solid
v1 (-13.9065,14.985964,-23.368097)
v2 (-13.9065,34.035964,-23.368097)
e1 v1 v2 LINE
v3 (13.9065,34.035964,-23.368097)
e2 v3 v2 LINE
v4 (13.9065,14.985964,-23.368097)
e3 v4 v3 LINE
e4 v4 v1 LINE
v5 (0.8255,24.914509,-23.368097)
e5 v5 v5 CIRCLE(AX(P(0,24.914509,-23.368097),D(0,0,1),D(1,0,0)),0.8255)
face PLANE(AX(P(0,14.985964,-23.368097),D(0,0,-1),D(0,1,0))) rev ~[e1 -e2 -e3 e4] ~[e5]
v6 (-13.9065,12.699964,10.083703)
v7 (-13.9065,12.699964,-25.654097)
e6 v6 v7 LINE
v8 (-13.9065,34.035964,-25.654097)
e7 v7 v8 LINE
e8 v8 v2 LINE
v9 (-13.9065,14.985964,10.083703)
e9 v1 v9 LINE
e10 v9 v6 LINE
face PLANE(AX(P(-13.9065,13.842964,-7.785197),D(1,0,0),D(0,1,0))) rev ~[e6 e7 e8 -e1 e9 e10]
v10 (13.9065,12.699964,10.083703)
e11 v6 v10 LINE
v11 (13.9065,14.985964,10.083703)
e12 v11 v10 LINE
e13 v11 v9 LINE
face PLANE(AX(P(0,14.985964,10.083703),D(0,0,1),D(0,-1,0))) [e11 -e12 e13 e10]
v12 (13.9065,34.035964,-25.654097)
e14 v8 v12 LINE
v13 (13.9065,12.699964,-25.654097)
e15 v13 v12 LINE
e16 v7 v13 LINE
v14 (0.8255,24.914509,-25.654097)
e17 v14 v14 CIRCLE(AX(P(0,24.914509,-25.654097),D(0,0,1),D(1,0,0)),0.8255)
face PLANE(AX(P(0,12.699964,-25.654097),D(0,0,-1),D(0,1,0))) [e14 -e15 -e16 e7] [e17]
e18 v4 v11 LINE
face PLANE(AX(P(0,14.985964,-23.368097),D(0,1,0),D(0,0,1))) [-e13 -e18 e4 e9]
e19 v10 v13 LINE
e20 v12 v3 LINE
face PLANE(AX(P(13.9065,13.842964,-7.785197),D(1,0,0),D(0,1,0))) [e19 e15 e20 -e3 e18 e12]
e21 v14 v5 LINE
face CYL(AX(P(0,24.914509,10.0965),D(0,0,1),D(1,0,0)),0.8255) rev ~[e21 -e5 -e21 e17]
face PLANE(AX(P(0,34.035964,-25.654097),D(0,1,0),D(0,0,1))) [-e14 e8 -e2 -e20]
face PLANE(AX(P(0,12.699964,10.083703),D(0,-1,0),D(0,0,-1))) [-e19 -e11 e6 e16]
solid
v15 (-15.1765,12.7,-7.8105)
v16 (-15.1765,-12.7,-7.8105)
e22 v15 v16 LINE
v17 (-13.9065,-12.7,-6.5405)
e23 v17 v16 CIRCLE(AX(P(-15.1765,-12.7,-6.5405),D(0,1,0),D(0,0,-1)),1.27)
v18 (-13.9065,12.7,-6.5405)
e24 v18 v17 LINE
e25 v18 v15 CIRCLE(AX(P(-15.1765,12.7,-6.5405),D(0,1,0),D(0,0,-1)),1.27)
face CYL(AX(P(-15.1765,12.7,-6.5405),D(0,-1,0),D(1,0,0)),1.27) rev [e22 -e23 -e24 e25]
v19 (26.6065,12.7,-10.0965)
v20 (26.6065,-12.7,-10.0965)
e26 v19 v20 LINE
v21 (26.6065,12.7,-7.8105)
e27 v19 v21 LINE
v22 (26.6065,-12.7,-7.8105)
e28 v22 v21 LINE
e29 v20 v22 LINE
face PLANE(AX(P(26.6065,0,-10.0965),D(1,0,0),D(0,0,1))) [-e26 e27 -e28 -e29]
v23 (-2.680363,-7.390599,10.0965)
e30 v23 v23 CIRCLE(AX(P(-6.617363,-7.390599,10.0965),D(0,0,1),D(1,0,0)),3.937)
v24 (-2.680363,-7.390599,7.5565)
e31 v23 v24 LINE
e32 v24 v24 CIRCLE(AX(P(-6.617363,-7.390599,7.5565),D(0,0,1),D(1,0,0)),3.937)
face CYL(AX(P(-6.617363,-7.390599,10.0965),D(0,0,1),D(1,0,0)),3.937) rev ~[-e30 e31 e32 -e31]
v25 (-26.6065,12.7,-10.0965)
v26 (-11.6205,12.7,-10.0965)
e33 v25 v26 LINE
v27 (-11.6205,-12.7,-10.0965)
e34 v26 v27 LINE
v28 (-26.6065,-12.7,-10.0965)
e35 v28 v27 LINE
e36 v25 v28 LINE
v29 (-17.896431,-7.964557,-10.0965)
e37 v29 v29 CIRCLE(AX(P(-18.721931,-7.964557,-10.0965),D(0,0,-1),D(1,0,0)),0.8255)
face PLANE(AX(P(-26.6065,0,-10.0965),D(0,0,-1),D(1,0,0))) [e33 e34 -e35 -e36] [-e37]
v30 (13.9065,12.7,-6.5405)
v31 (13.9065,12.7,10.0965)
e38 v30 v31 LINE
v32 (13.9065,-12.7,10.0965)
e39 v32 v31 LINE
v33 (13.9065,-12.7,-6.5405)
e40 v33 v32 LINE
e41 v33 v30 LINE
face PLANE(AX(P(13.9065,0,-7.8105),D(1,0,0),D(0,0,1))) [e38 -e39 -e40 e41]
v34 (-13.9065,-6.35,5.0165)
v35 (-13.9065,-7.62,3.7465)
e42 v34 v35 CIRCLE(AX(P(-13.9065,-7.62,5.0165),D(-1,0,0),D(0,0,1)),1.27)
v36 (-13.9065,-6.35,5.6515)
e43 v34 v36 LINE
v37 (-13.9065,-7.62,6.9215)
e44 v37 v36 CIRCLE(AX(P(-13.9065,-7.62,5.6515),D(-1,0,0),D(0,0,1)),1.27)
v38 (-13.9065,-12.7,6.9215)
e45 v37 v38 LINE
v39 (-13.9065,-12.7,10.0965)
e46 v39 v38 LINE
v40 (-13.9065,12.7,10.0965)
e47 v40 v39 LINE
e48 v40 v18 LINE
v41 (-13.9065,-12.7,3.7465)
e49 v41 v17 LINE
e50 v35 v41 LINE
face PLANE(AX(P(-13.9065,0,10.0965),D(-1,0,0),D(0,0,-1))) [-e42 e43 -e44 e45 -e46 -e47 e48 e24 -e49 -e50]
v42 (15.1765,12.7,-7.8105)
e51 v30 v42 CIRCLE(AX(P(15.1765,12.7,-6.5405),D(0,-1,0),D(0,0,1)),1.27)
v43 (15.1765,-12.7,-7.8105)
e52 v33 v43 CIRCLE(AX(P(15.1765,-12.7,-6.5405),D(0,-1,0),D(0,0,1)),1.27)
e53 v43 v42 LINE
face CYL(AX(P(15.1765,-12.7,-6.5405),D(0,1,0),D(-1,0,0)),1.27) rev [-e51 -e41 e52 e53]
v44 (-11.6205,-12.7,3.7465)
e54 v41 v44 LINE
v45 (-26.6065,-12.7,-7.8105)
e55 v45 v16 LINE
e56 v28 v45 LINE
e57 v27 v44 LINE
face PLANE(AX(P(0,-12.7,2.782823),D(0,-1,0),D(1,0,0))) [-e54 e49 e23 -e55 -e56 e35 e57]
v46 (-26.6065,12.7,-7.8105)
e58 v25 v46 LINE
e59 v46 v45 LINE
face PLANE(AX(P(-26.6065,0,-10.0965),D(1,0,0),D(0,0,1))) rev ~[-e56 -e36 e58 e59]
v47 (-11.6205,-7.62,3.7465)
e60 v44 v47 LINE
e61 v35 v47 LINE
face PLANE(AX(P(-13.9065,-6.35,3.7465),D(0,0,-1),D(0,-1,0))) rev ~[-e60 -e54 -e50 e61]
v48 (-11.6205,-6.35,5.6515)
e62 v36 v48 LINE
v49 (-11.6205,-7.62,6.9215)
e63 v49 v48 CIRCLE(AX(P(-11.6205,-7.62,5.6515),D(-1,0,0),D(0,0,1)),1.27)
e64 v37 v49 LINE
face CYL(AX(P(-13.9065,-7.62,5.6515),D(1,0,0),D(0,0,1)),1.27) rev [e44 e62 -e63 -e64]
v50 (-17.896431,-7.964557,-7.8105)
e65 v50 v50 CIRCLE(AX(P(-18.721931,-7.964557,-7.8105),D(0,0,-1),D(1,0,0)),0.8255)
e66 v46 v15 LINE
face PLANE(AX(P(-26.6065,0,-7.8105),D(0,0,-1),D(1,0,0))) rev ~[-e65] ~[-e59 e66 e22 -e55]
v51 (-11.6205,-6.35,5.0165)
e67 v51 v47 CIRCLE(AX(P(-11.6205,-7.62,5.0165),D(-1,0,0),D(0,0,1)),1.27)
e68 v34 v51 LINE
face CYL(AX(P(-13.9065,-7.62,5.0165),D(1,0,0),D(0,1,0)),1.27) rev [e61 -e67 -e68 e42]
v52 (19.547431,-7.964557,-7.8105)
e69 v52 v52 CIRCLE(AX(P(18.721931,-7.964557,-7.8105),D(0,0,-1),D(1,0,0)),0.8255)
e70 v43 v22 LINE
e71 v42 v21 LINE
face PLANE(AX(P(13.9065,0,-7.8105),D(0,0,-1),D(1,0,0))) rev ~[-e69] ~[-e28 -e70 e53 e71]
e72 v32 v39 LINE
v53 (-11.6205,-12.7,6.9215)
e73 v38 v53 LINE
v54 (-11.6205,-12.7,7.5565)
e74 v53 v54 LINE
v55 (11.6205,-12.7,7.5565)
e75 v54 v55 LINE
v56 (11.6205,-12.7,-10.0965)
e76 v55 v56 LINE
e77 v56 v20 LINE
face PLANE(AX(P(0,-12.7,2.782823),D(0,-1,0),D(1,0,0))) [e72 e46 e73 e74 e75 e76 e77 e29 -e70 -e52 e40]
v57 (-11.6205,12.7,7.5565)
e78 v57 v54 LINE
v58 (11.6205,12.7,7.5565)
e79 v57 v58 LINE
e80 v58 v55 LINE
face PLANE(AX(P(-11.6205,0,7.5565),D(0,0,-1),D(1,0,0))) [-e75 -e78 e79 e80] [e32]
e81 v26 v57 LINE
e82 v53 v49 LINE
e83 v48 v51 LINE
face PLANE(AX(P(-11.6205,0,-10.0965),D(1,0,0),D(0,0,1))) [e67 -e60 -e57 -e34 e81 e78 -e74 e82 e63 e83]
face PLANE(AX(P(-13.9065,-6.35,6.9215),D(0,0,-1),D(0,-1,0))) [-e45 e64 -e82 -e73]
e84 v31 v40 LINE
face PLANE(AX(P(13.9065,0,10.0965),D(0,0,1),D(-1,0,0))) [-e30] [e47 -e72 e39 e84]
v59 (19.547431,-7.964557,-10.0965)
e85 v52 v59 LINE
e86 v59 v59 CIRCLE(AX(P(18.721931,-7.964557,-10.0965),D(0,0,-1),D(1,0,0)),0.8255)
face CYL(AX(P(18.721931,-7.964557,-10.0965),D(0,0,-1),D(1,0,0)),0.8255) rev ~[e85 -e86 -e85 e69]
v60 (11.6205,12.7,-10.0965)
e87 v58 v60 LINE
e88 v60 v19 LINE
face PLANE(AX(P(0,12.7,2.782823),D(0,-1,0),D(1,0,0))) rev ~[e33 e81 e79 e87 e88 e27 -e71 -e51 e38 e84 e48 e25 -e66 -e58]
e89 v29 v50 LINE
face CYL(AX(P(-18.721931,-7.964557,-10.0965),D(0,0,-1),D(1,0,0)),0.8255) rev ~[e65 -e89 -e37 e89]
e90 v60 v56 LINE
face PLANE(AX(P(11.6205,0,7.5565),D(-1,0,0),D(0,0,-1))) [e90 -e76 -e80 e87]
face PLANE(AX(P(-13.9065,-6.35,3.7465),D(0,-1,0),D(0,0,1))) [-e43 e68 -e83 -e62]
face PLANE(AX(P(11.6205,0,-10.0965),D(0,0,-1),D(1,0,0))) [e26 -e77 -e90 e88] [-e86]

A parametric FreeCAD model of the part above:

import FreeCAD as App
import Part
import Sketcher
from FreeCAD import Vector
Q = App.Units.Quantity


def edges_at(feature, points):
    """Names of the edges that pass closest to the given points."""
    edges = feature.Shape.Edges
    near = lambda p: min(range(len(edges)), key=lambda i: edges[i].distToShape(Part.Vertex(*p))[0])
    return sorted({f"Edge{near(p) + 1}" for p in points})


def add_polygon(sketch, points):
    """Adds a closed chain of lines whose ends are joined by coincident constraints."""
    first, n = sketch.GeometryCount, len(points)
    for a, b in zip(points, points[1:] + points[:1]):
        sketch.addGeometry(Part.LineSegment(App.Vector(*a, 0), App.Vector(*b, 0)), False)
    for i in range(n):
        sketch.addConstraint(Sketcher.Constraint("Coincident", first + i, 2, first + (i + 1) % n, 1))

doc = App.newDocument("Part")
params = doc.addObject("Spreadsheet::Sheet", "Params")
for row, (alias, value) in enumerate([
    ("sketch1_width", "0.5 in"),
    ("sketch1_width2", "0.59 in"),
    ("sketch1_height", "0.09 in"),
    ("sketch1_width3", "1.095 in"),
    ("sketch1_height2", "0.705 in"),
    ("pad1_length", "1 in"),
    ("sketch2_width", "0.09 in"),
    ("sketch2_width2", "0.84 in"),
    ("sketch2_height", "1.407 in"),
    ("pad2_length", "1.095 in"),
    ("sketch3_diameter", "0.31 in"),
    ("sketch3_diameter2", "0.065 in"),
    ("pad3_length", "5 in"),
    ("sketch4_diameter", "0.065 in"),
    ("pocket1_length", "5 in"),
    ("sketch5_width", "0.25 in"),
    ("sketch5_height", "0.125 in"),
    ("pocket2_length", "1 in"),
    ("fillet_radius", "0.05 in"),
], start=1):
    params.set(f"A{row}", alias)
    params.set(f"B{row}", "=" + value)
    params.setAlias(f"B{row}", alias)

body = doc.addObject("PartDesign::Body", "Body")

# Sketch on XZ plane
sketch1 = doc.addObject("Sketcher::SketchObject", "Sketch")
body.addObject(sketch1)
sketch1.AttachmentSupport = (doc.XZ_Plane, [""])
sketch1.MapMode = "FlatFace"
add_polygon(sketch1, [(13.9, 10.1), (-13.9, 10.1), (-13.9, -7.8), (-26.6, -7.8), (-26.6, -10.1), (-11.6, -10.1), (-11.6, 7.6), (11.6, 7.6), (11.6, -10.1), (26.6, -10.1), (26.6, -7.8), (13.9, -7.8)])  # lines 0-11
sketch1.addConstraint(Sketcher.Constraint("Horizontal", 0))
sketch1.addConstraint(Sketcher.Constraint("Vertical", 1))
sketch1.addConstraint(Sketcher.Constraint("Horizontal", 2))
sketch1.addConstraint(Sketcher.Constraint("Vertical", 3))
sketch1.addConstraint(Sketcher.Constraint("Horizontal", 4))
sketch1.addConstraint(Sketcher.Constraint("Vertical", 5))
sketch1.addConstraint(Sketcher.Constraint("Horizontal", 6))
sketch1.addConstraint(Sketcher.Constraint("Vertical", 7))
sketch1.addConstraint(Sketcher.Constraint("Horizontal", 8))
sketch1.addConstraint(Sketcher.Constraint("Vertical", 9))
sketch1.addConstraint(Sketcher.Constraint("Horizontal", 10))
sketch1.addConstraint(Sketcher.Constraint("Vertical", 11))
sketch1.addConstraint(Sketcher.Constraint("Symmetric", 4, 2, 7, 2, -2))
sketch1.addConstraint(Sketcher.Constraint("Symmetric", 2, 2, 9, 2, -2))
sketch1.addConstraint(Sketcher.Constraint("Equal", 2, 10))
sketch1.addConstraint(Sketcher.Constraint("DistanceX", 2, 2, 2, 1, Q("0.5 in")))
sketch1.addConstraint(Sketcher.Constraint("DistanceX", 4, 1, 4, 2, Q("0.59 in")))
sketch1.addConstraint(Sketcher.Constraint("DistanceY", 3, 2, 3, 1, Q("0.09 in")))
sketch1.addConstraint(Sketcher.Constraint("DistanceY", 5, 2, 0, 2, Q("0.1 in")))
sketch1.addConstraint(Sketcher.Constraint("DistanceX", 0, 2, 0, 1, Q("1.095 in")))
sketch1.addConstraint(Sketcher.Constraint("DistanceY", 1, 2, 1, 1, Q("0.705 in")))
sketch1.addConstraint(Sketcher.Constraint("DistanceY", -1, 1, 0, 2, Q("0.3975 in")))
sketch1.setExpression("Constraints[27]", "Params.sketch1_width")
sketch1.setExpression("Constraints[28]", "Params.sketch1_width2")
sketch1.setExpression("Constraints[29]", "Params.sketch1_height")
sketch1.setExpression("Constraints[31]", "Params.sketch1_width3")
sketch1.setExpression("Constraints[32]", "Params.sketch1_height2")
pad1 = doc.addObject("PartDesign::Pad", "Pad")
body.addObject(pad1)
pad1.Profile = sketch1
pad1.setExpression("Length", "Params.pad1_length")
pad1.Midplane = True
body2 = doc.addObject("PartDesign::Body", "Body001")

# Sketch on YZ plane
sketch2 = doc.addObject("Sketcher::SketchObject", "Sketch001")
body2.addObject(sketch2)
sketch2.AttachmentSupport = (doc.getObject("YZ_Plane001"), [""])
sketch2.MapMode = "FlatFace"
add_polygon(sketch2, [(15, 10.1), (12.7, 10.1), (12.7, -25.7), (34, -25.7), (34, -23.4), (15, -23.4)])  # lines 0-5
sketch2.addConstraint(Sketcher.Constraint("Horizontal", 0))
sketch2.addConstraint(Sketcher.Constraint("Vertical", 1))
sketch2.addConstraint(Sketcher.Constraint("Horizontal", 2))
sketch2.addConstraint(Sketcher.Constraint("Vertical", 3))
sketch2.addConstraint(Sketcher.Constraint("Horizontal", 4))
sketch2.addConstraint(Sketcher.Constraint("Vertical", 5))
sketch2.addConstraint(Sketcher.Constraint("Equal", 0, 3))
sketch2.addConstraint(Sketcher.Constraint("DistanceX", 0, 2, 0, 1, Q("0.09 in")))
sketch2.addConstraint(Sketcher.Constraint("DistanceX", 2, 1, 2, 2, Q("0.84 in")))
sketch2.addConstraint(Sketcher.Constraint("DistanceY", 1, 2, 1, 1, Q("1.407 in")))
sketch2.addConstraint(Sketcher.Constraint("DistanceX", -1, 1, 0, 2, Q("12.699964 mm")))
sketch2.addConstraint(Sketcher.Constraint("DistanceY", -1, 1, 0, 2, Q("10.083703 mm")))
sketch2.setExpression("Constraints[13]", "Params.sketch2_width")
sketch2.setExpression("Constraints[14]", "Params.sketch2_width2")
sketch2.setExpression("Constraints[15]", "Params.sketch2_height")
pad2 = doc.addObject("PartDesign::Pad", "Pad001")
body2.addObject(pad2)
pad2.Profile = sketch2
pad2.setExpression("Length", "Params.pad2_length")
pad2.Midplane = True
body3 = doc.addObject("PartDesign::Body", "Body002")
body3.AllowCompound = True

# Sketch on XY plane
sketch3 = doc.addObject("Sketcher::SketchObject", "Sketch002")
body3.addObject(sketch3)
sketch3.AttachmentSupport = (doc.getObject("XY_Plane002"), [""])
sketch3.MapMode = "FlatFace"
sketch3.AttachmentOffset = App.Placement(Vector(0, 0, 0.3975 * 25.4), App.Rotation())
sketch3.addGeometry(Part.Circle(Vector(-6.6, -7.4, 0), Vector(0, 0, 1), 3.9), False)
sketch3.addGeometry(Part.Circle(Vector(0, 24.9, 0), Vector(0, 0, 1), 0.8), False)
sketch3.addConstraint(Sketcher.Constraint("PointOnObject", 1, 3, -2))
sketch3.addConstraint(Sketcher.Constraint("Diameter", 0, Q("0.31 in")))
sketch3.addConstraint(Sketcher.Constraint("Diameter", 1, Q("0.065 in")))
sketch3.addConstraint(Sketcher.Constraint("DistanceY", 0, 3, -1, 1, Q("7.390599 mm")))
sketch3.addConstraint(Sketcher.Constraint("DistanceY", -1, 1, 1, 3, Q("24.914509 mm")))
sketch3.addConstraint(Sketcher.Constraint("DistanceX", 0, 3, -1, 1, Q("6.617363 mm")))
sketch3.setExpression("Constraints[1]", "Params.sketch3_diameter")
sketch3.setExpression("Constraints[2]", "Params.sketch3_diameter2")
pad3 = doc.addObject("PartDesign::Pad", "Pad002")
body3.addObject(pad3)
pad3.Profile = sketch3
pad3.setExpression("Length", "Params.pad3_length")
pad3.Midplane = True
doc.recompute()

body4 = doc.addObject("PartDesign::Body", "Body003")
body4.BaseFeature = body3
boolean = doc.addObject("PartDesign::Boolean", "Boolean")
body.addObject(boolean)
boolean.Type = "Cut"
boolean.addObjects([body4])
doc.recompute()

# Sketch on XY plane
sketch4 = doc.addObject("Sketcher::SketchObject", "Sketch003")
body.addObject(sketch4)
sketch4.AttachmentSupport = (doc.XY_Plane, [""])
sketch4.MapMode = "FlatFace"
sketch4.AttachmentOffset = App.Placement(Vector(0, 0, -0.3975 * 25.4), App.Rotation())
sketch4.addGeometry(Part.Circle(Vector(-18.7, -8, 0), Vector(0, 0, 1), 0.8), False)
sketch4.addGeometry(Part.Circle(Vector(18.7, -8, 0), Vector(0, 0, 1), 0.8), False)
sketch4.addConstraint(Sketcher.Constraint("Equal", 0, 1))
sketch4.addConstraint(Sketcher.Constraint("Symmetric", 0, 3, 1, 3, -2))
sketch4.addConstraint(Sketcher.Constraint("Diameter", 0, Q("0.065 in")))
sketch4.addConstraint(Sketcher.Constraint("DistanceX", 0, 3, -1, 1, Q("18.721931 mm")))
sketch4.addConstraint(Sketcher.Constraint("DistanceY", 0, 3, -1, 1, Q("7.964557 mm")))
sketch4.setExpression("Constraints[2]", "Params.sketch4_diameter")
pocket1 = doc.addObject("PartDesign::Pocket", "Pocket")
body.addObject(pocket1)
pocket1.Profile = sketch4
pocket1.setExpression("Length", "Params.pocket1_length")
pocket1.Midplane = True

# Sketch on YZ plane
sketch5 = doc.addObject("Sketcher::SketchObject", "Sketch004")
body.addObject(sketch5)
sketch5.AttachmentSupport = (doc.YZ_Plane, [""])
sketch5.MapMode = "FlatFace"
sketch5.AttachmentOffset = App.Placement(Vector(0, 0, -0.5475 * 25.4), App.Rotation())
add_polygon(sketch5, [(-6.3, 6.9), (-6.3, 3.7), (-12.7, 3.7), (-12.7, 6.9)])  # lines 0-3
sketch5.addConstraint(Sketcher.Constraint("Vertical", 0))
sketch5.addConstraint(Sketcher.Constraint("Horizontal", 1))
sketch5.addConstraint(Sketcher.Constraint("Vertical", 2))
sketch5.addConstraint(Sketcher.Constraint("Horizontal", 3))
sketch5.addConstraint(Sketcher.Constraint("DistanceX", 1, 2, 1, 1, Q("0.25 in")))
sketch5.addConstraint(Sketcher.Constraint("DistanceX", 1, 2, -1, 1, Q("0.5 in")))
sketch5.addConstraint(Sketcher.Constraint("DistanceY", 0, 2, 0, 1, Q("0.125 in")))
sketch5.addConstraint(Sketcher.Constraint("DistanceY", -1, 1, 0, 2, Q("0.1475 in")))
sketch5.setExpression("Constraints[8]", "Params.sketch5_width")
sketch5.setExpression("Constraints[10]", "Params.sketch5_height")
pocket2 = doc.addObject("PartDesign::Pocket", "Pocket001")
body.addObject(pocket2)
pocket2.Profile = sketch5
pocket2.setExpression("Length", "Params.pocket2_length")
pocket2.Reversed = True
doc.recompute()

fillet = doc.addObject("PartDesign::Fillet", "Fillet")
body.addObject(fillet)
fillet.Base = (pocket2, edges_at(pocket2, [
    (-12.764, -6.35, 3.747),
    (-12.764, -6.35, 6.921),
    (-13.906, 0, -7.811),
    (13.906, 0, -7.811),
]))
fillet.setExpression("Radius", "Params.fillet_radius")
doc.recompute()

boolean2 = doc.addObject("PartDesign::Boolean", "Boolean001")
body2.addObject(boolean2)
boolean2.Type = "Cut"
boolean2.addObjects([body3])

doc.recompute()
